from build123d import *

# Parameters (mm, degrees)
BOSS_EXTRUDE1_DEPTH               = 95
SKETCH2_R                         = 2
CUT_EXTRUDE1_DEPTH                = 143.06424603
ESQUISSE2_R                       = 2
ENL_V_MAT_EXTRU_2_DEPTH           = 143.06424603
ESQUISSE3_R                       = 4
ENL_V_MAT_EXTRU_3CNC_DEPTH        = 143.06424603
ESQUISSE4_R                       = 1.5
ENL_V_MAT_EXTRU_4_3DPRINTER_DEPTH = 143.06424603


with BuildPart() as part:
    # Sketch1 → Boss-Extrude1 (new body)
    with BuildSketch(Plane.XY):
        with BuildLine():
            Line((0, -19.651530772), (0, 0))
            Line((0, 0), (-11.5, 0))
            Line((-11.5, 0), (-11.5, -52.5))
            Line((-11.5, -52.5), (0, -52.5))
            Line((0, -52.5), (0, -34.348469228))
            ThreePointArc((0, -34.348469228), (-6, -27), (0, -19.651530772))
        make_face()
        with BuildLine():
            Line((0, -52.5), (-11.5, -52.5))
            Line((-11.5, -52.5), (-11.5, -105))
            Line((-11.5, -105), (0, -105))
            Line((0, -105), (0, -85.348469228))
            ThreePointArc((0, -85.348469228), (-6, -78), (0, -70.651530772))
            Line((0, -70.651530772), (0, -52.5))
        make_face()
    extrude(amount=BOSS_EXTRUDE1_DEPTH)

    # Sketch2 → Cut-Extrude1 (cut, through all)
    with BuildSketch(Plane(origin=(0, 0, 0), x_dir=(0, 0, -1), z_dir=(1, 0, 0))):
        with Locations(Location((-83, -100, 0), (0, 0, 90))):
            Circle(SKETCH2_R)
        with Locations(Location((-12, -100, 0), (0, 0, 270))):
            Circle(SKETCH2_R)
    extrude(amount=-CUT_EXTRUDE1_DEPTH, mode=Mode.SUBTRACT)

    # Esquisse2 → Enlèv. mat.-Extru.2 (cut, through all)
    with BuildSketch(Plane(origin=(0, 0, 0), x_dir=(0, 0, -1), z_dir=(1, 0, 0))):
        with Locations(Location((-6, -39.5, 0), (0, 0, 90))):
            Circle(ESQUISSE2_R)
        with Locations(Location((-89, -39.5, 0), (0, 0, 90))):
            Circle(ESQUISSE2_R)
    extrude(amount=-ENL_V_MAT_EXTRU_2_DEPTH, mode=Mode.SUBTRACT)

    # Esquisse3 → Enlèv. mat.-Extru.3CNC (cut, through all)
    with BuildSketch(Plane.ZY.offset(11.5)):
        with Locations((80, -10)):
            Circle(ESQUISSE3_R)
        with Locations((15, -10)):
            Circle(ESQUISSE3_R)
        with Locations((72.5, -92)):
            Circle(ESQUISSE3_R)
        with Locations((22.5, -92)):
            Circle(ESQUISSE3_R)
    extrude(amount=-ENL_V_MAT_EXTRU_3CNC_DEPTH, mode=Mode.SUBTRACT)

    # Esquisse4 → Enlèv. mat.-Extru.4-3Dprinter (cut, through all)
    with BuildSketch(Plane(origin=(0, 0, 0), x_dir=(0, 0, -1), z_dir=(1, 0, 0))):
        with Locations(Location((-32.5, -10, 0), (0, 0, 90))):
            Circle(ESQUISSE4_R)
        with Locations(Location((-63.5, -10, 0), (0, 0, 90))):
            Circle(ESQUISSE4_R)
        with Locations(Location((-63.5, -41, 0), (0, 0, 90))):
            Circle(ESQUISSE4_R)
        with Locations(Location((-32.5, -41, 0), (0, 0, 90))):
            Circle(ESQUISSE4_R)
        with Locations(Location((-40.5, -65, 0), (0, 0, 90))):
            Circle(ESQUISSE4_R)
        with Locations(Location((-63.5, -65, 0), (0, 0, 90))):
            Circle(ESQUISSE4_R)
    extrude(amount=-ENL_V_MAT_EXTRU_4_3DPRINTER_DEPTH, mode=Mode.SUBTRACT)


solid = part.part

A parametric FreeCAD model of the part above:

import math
import FreeCAD as App
import Part
import Sketcher
from FreeCAD import Vector
Q = App.Units.Quantity

doc = App.newDocument("Part")
body = doc.addObject("PartDesign::Body", "Body")

sketch1 = doc.addObject("Sketcher::SketchObject", "Sketch")
body.addObject(sketch1)
sketch1.AttachmentSupport = (doc.XY_Plane, [""])
sketch1.MapMode = "FlatFace"
sketch1.addGeometry([
    Part.LineSegment(Vector(0, -20, 0), Vector(0, 0, 0)),
    Part.LineSegment(Vector(0, 0, 0), Vector(-12, 0, 0)),
    Part.LineSegment(Vector(-12, 0, 0), Vector(-12, -105, 0)),
    Part.LineSegment(Vector(-12, -105, 0), Vector(0, -105, 0)),
    Part.LineSegment(Vector(0, -105, 0), Vector(0, -85, 0)),
    Part.ArcOfCircle(Part.Circle(Vector(2, -78, 0), Vector(0, 0, 1), 8), math.radians(102), math.radians(258)),
    Part.LineSegment(Vector(0, -71, 0), Vector(0, -34, 0)),
    Part.ArcOfCircle(Part.Circle(Vector(2, -27, 0), Vector(0, 0, 1), 8), math.radians(102), math.radians(258)),
], False)
sketch1.addConstraint([
    Sketcher.Constraint("Coincident", 0, 2, 1, 1),
    Sketcher.Constraint("Coincident", 1, 2, 2, 1),
    Sketcher.Constraint("Coincident", 2, 2, 3, 1),
    Sketcher.Constraint("Coincident", 3, 2, 4, 1),
    Sketcher.Constraint("Coincident", 4, 2, 5, 2),
    Sketcher.Constraint("Coincident", 5, 1, 6, 1),
    Sketcher.Constraint("Coincident", 6, 2, 7, 2),
    Sketcher.Constraint("Coincident", 7, 1, 0, 1),
    Sketcher.Constraint("Vertical", 0),
    Sketcher.Constraint("Horizontal", 1),
    Sketcher.Constraint("Vertical", 2),
    Sketcher.Constraint("Horizontal", 3),
    Sketcher.Constraint("Vertical", 4),
    Sketcher.Constraint("Vertical", 6),
    Sketcher.Constraint("Coincident", 0, 2, -1, 1),
    Sketcher.Constraint("Equal", 5, 7),
    Sketcher.Constraint("PointOnObject", 3, 2, -2),
    Sketcher.Constraint("PointOnObject", 5, 1, -2),
    Sketcher.Constraint("Vertical", 5, 3, 7, 3),
    Sketcher.Constraint("Equal", 0, 4),
    Sketcher.Constraint("Radius", 5, Q("7.5 mm")),
    Sketcher.Constraint("DistanceY", 2, 2, 2, 1, Q("105 mm")),
    Sketcher.Constraint("DistanceX", 1, 2, 1, 1, Q("11.5 mm")),
    Sketcher.Constraint("DistanceY", 5, 3, -1, 1, Q("78 mm")),
    Sketcher.Constraint("DistanceX", 1, 2, 7, 3, Q("13 mm")),
])
pad1 = doc.addObject("PartDesign::Pad", "Pad")
body.addObject(pad1)
pad1.Profile = sketch1
pad1.Length = 95

sketch2 = doc.addObject("Sketcher::SketchObject", "Sketch001")
body.addObject(sketch2)
sketch2.AttachmentSupport = (doc.YZ_Plane, [""])
sketch2.MapMode = "FlatFace"
sketch2.addGeometry([
    Part.Circle(Vector(-100, 83, 0), Vector(0, 0, 1), 2),
    Part.Circle(Vector(-100, 12, 0), Vector(0, 0, 1), 2),
], False)
sketch2.addConstraint([
    Sketcher.Constraint("Equal", 0, 1),
    Sketcher.Constraint("Vertical", 0, 3, 1, 3),
    Sketcher.Constraint("Diameter", 0, Q("4 mm")),
    Sketcher.Constraint("DistanceX", 0, 3, -1, 1, Q("100 mm")),
    Sketcher.Constraint("DistanceY", -1, 1, 0, 3, Q("83 mm")),
    Sketcher.Constraint("DistanceY", -1, 1, 1, 3, Q("12 mm")),
])
pocket1 = doc.addObject("PartDesign::Pocket", "Pocket")
body.addObject(pocket1)
pocket1.Profile = sketch2
pocket1.Type = "ThroughAll"

sketch3 = doc.addObject("Sketcher::SketchObject", "Sketch002")
body.addObject(sketch3)
sketch3.AttachmentSupport = (doc.YZ_Plane, [""])
sketch3.MapMode = "FlatFace"
sketch3.addGeometry([
    Part.Circle(Vector(-39.5, 6, 0), Vector(0, 0, 1), 2),
    Part.Circle(Vector(-39.5, 89, 0), Vector(0, 0, 1), 2),
], False)
sketch3.addConstraint([
    Sketcher.Constraint("Equal", 0, 1),
    Sketcher.Constraint("Vertical", 0, 3, 1, 3),
    Sketcher.Constraint("Diameter", 0, Q("4 mm")),
    Sketcher.Constraint("DistanceY", -1, 1, 0, 3, Q("6 mm")),
    Sketcher.Constraint("DistanceY", -1, 1, 1, 3, Q("89 mm")),
    Sketcher.Constraint("DistanceX", 0, 3, -1, 1, Q("39.5 mm")),
])
pocket2 = doc.addObject("PartDesign::Pocket", "Pocket001")
body.addObject(pocket2)
pocket2.Profile = sketch3
pocket2.Type = "ThroughAll"

sketch4 = doc.addObject("Sketcher::SketchObject", "Sketch003")
body.addObject(sketch4)
sketch4.AttachmentSupport = (doc.YZ_Plane, [""])
sketch4.MapMode = "FlatFace"
sketch4.AttachmentOffset = App.Placement(Vector(0, 0, -11.5), App.Rotation())
sketch4.addGeometry([
    Part.Circle(Vector(-10, 80, 0), Vector(0, 0, 1), 4),
    Part.Circle(Vector(-10, 15, 0), Vector(0, 0, 1), 4),
    Part.Circle(Vector(-92, 72.5, 0), Vector(0, 0, 1), 4),
    Part.Circle(Vector(-92, 22.5, 0), Vector(0, 0, 1), 4),
], False)
sketch4.addConstraint([
    Sketcher.Constraint("Equal", 0, 1),
    Sketcher.Constraint("Equal", 1, 2),
    Sketcher.Constraint("Equal", 2, 3),
    Sketcher.Constraint("Vertical", 0, 3, 1, 3),
    Sketcher.Constraint("Vertical", 2, 3, 3, 3),
    Sketcher.Constraint("Diameter", 0, Q("8 mm")),
    Sketcher.Constraint("DistanceX", 0, 3, -1, 1, Q("10 mm")),
    Sketcher.Constraint("DistanceY", -1, 1, 0, 3, Q("80 mm")),
    Sketcher.Constraint("DistanceY", -1, 1, 1, 3, Q("15 mm")),
    Sketcher.Constraint("DistanceX", 2, 3, -1, 1, Q("92 mm")),
    Sketcher.Constraint("DistanceY", 3, 3, 2, 3, Q("50 mm")),
    Sketcher.Constraint("DistanceY", -1, 1, 2, 3, Q("72.5 mm")),
])
pocket3 = doc.addObject("PartDesign::Pocket", "Pocket002")
body.addObject(pocket3)
pocket3.Profile = sketch4
pocket3.Type = "ThroughAll"
pocket3.Reversed = True

sketch5 = doc.addObject("Sketcher::SketchObject", "Sketch004")
body.addObject(sketch5)
sketch5.AttachmentSupport = (doc.YZ_Plane, [""])
sketch5.MapMode = "FlatFace"
sketch5.addGeometry([
    Part.Circle(Vector(-10, 32.5, 0), Vector(0, 0, 1), 1.5),
    Part.Circle(Vector(-10, 63.5, 0), Vector(0, 0, 1), 1.5),
    Part.Circle(Vector(-41, 63.5, 0), Vector(0, 0, 1), 1.5),
    Part.Circle(Vector(-41, 32.5, 0), Vector(0, 0, 1), 1.5),
    Part.Circle(Vector(-65, 40.5, 0), Vector(0, 0, 1), 1.5),
    Part.Circle(Vector(-65, 63.5, 0), Vector(0, 0, 1), 1.5),
], False)
sketch5.addConstraint([
    Sketcher.Constraint("Equal", 0, 1),
    Sketcher.Constraint("Equal", 1, 2),
    Sketcher.Constraint("Equal", 2, 3),
    Sketcher.Constraint("Equal", 3, 4),
    Sketcher.Constraint("Equal", 4, 5),
    Sketcher.Constraint("Horizontal", 1, 3, 2, 3),
    Sketcher.Constraint("Horizontal", 0, 3, 3, 3),
    Sketcher.Constraint("Horizontal", 2, 3, 5, 3),
    Sketcher.Constraint("Vertical", 0, 3, 1, 3),
    Sketcher.Constraint("Vertical", 2, 3, 3, 3),
    Sketcher.Constraint("Vertical", 4, 3, 5, 3),
    Sketcher.Constraint("Diameter", 0, Q("3 mm")),
    Sketcher.Constraint("DistanceX", 0, 3, -1, 1, Q("10 mm")),
    Sketcher.Constraint("DistanceX", 2, 3, -1, 1, Q("41 mm")),
    Sketcher.Constraint("DistanceX", 4, 3, -1, 1, Q("65 mm")),
    Sketcher.Constraint("DistanceY", 0, 3, 1, 3, Q("31 mm")),
    Sketcher.Constraint("DistanceY", 3, 3, 4, 3, Q("8 mm")),
    Sketcher.Constraint("DistanceY", -1, 1, 0, 3, Q("32.5 mm")),
])
pocket4 = doc.addObject("PartDesign::Pocket", "Pocket003")
body.addObject(pocket4)
pocket4.Profile = sketch5
pocket4.Type = "ThroughAll"

doc.recompute()
